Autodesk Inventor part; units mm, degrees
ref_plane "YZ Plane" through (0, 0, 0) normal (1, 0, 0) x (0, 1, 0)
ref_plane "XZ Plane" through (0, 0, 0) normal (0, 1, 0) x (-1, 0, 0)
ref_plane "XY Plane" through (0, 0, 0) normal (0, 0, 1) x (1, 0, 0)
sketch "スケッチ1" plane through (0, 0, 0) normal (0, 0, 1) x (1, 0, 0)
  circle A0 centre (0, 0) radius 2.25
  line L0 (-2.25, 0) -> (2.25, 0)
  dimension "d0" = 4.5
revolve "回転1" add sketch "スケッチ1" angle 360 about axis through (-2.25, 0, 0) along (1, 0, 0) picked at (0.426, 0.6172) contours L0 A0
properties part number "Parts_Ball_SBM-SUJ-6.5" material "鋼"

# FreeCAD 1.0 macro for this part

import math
import FreeCAD as App
import Part
import Sketcher
from FreeCAD import Vector
Q = App.Units.Quantity

doc = App.newDocument("Part")
body = doc.addObject("PartDesign::Body", "Body")

sketch1 = body.newObject("Sketcher::SketchObject", "Sketch")
sketch1.AttachmentSupport = (doc.getObject("XY_Plane"), [""])
sketch1.MapMode = "FlatFace"
sketch1.addGeometry([
    Part.LineSegment(Vector(-2.2, 0, 0), Vector(2.2, 0, 0)),
    Part.ArcOfCircle(Part.Circle(Vector(0, 0, 0), Vector(0, 0, 1), 2.2), math.radians(0), math.radians(180)),
], False)
sketch1.addConstraint([
    Sketcher.Constraint("Coincident", 0, 1, 1, 2),
    Sketcher.Constraint("Coincident", 1, 1, 0, 2),
    Sketcher.Constraint("Horizontal", 0),
    Sketcher.Constraint("Coincident", 1, 3, -1, 1),
    Sketcher.Constraint("PointOnObject", 0, 1, -1),
    Sketcher.Constraint("Radius", 1, Q("2.25 mm")),
])
revolution = body.newObject("PartDesign::Revolution", "Revolution")
revolution.Profile = sketch1
revolution.ReferenceAxis = (sketch1, ["H_Axis"])
revolution.Angle = 360

doc.recompute()
